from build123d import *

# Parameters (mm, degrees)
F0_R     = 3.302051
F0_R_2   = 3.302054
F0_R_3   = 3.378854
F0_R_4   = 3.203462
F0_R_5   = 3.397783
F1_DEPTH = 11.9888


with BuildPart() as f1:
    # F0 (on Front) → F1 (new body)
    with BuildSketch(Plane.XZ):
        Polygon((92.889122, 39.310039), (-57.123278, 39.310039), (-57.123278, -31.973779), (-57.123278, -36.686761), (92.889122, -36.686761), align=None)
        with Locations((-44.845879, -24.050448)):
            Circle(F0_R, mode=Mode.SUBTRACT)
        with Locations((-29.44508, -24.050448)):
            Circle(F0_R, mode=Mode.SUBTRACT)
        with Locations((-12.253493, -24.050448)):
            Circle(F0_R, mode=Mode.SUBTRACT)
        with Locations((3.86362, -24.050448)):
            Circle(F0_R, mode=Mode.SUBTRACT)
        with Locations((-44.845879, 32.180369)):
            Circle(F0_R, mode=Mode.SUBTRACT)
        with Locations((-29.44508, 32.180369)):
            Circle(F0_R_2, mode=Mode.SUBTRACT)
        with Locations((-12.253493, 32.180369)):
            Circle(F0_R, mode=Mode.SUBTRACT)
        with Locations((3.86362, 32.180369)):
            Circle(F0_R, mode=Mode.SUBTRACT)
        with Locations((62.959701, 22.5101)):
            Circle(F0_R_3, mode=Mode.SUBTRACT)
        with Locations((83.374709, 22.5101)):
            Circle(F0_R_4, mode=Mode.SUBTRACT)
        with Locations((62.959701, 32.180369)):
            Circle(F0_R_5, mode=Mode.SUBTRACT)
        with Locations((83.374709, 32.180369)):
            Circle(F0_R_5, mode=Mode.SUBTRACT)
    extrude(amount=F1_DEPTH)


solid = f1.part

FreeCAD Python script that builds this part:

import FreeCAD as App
import Part
import Sketcher
from FreeCAD import Vector
Q = App.Units.Quantity


def add_polygon(sketch, points):
    """Adds a closed chain of lines whose ends are joined by coincident constraints."""
    first, n = sketch.GeometryCount, len(points)
    for a, b in zip(points, points[1:] + points[:1]):
        sketch.addGeometry(Part.LineSegment(App.Vector(*a, 0), App.Vector(*b, 0)), False)
    for i in range(n):
        sketch.addConstraint(Sketcher.Constraint("Coincident", first + i, 2, first + (i + 1) % n, 1))

doc = App.newDocument("Part")
body = doc.addObject("PartDesign::Body", "Body")

# Sketch on XZ plane
sketch1 = doc.addObject("Sketcher::SketchObject", "Sketch")
body.addObject(sketch1)
sketch1.AttachmentSupport = (doc.XZ_Plane, [""])
sketch1.MapMode = "FlatFace"
add_polygon(sketch1, [(92.9, 39.3), (-57.1, 39.3), (-57.1, -36.7), (92.9, -36.7)])  # lines 0-3
sketch1.addGeometry(Part.Circle(Vector(-44.8, -24.1, 0), Vector(0, 0, 1), 3.3), False)  # 4
sketch1.addGeometry(Part.Circle(Vector(-29.4, -24.1, 0), Vector(0, 0, 1), 3.3), False)  # 5
sketch1.addGeometry(Part.Circle(Vector(-12.3, -24.1, 0), Vector(0, 0, 1), 3.3), False)  # 6
sketch1.addGeometry(Part.Circle(Vector(3.9, -24.1, 0), Vector(0, 0, 1), 3.3), False)  # 7
sketch1.addGeometry(Part.Circle(Vector(-44.8, 32.2, 0), Vector(0, 0, 1), 3.3), False)  # 8
sketch1.addGeometry(Part.Circle(Vector(-29.4, 32.2, 0), Vector(0, 0, 1), 3.3), False)  # 9
sketch1.addGeometry(Part.Circle(Vector(-12.3, 32.2, 0), Vector(0, 0, 1), 3.3), False)  # 10
sketch1.addGeometry(Part.Circle(Vector(3.9, 32.2, 0), Vector(0, 0, 1), 3.3), False)  # 11
sketch1.addGeometry(Part.Circle(Vector(63, 22.5, 0), Vector(0, 0, 1), 3.4), False)  # 12
sketch1.addGeometry(Part.Circle(Vector(83.4, 22.5, 0), Vector(0, 0, 1), 3.2), False)  # 13
sketch1.addGeometry(Part.Circle(Vector(63, 32.2, 0), Vector(0, 0, 1), 3.4), False)  # 14
sketch1.addGeometry(Part.Circle(Vector(83.4, 32.2, 0), Vector(0, 0, 1), 3.4), False)  # 15
sketch1.addConstraint(Sketcher.Constraint("Horizontal", 0))
sketch1.addConstraint(Sketcher.Constraint("Vertical", 1))
sketch1.addConstraint(Sketcher.Constraint("Horizontal", 2))
sketch1.addConstraint(Sketcher.Constraint("Vertical", 3))
sketch1.addConstraint(Sketcher.Constraint("Equal", 4, 5))
sketch1.addConstraint(Sketcher.Constraint("Equal", 5, 6))
sketch1.addConstraint(Sketcher.Constraint("Equal", 6, 7))
sketch1.addConstraint(Sketcher.Constraint("Equal", 7, 8))
sketch1.addConstraint(Sketcher.Constraint("Equal", 8, 10))
sketch1.addConstraint(Sketcher.Constraint("Equal", 10, 11))
sketch1.addConstraint(Sketcher.Constraint("Equal", 14, 15))
sketch1.addConstraint(Sketcher.Constraint("Horizontal", 4, 3, 5, 3))
sketch1.addConstraint(Sketcher.Constraint("Horizontal", 5, 3, 6, 3))
sketch1.addConstraint(Sketcher.Constraint("Horizontal", 6, 3, 7, 3))
sketch1.addConstraint(Sketcher.Constraint("Horizontal", 8, 3, 9, 3))
sketch1.addConstraint(Sketcher.Constraint("Horizontal", 9, 3, 10, 3))
sketch1.addConstraint(Sketcher.Constraint("Horizontal", 10, 3, 11, 3))
sketch1.addConstraint(Sketcher.Constraint("Horizontal", 12, 3, 13, 3))
sketch1.addConstraint(Sketcher.Constraint("Horizontal", 11, 3, 14, 3))
sketch1.addConstraint(Sketcher.Constraint("Horizontal", 14, 3, 15, 3))
sketch1.addConstraint(Sketcher.Constraint("Vertical", 4, 3, 8, 3))
sketch1.addConstraint(Sketcher.Constraint("Vertical", 5, 3, 9, 3))
sketch1.addConstraint(Sketcher.Constraint("Vertical", 6, 3, 10, 3))
sketch1.addConstraint(Sketcher.Constraint("Vertical", 7, 3, 11, 3))
sketch1.addConstraint(Sketcher.Constraint("Vertical", 12, 3, 14, 3))
sketch1.addConstraint(Sketcher.Constraint("Vertical", 13, 3, 15, 3))
sketch1.addConstraint(Sketcher.Constraint("DistanceX", 0, 2, 0, 1, Q("5.906 in")))
sketch1.addConstraint(Sketcher.Constraint("DistanceY", 1, 2, 1, 1, Q("2.992 in")))
sketch1.addConstraint(Sketcher.Constraint("Diameter", 4, Q("6.604102 mm")))
sketch1.addConstraint(Sketcher.Constraint("Diameter", 9, Q("6.604108 mm")))
sketch1.addConstraint(Sketcher.Constraint("Diameter", 12, Q("6.757708 mm")))
sketch1.addConstraint(Sketcher.Constraint("Diameter", 13, Q("6.406924 mm")))
sketch1.addConstraint(Sketcher.Constraint("Diameter", 14, Q("6.795566 mm")))
sketch1.addConstraint(Sketcher.Constraint("DistanceX", -1, 1, 12, 3, Q("62.959701 mm")))
sketch1.addConstraint(Sketcher.Constraint("DistanceY", -1, 1, 12, 3, Q("22.5101 mm")))
sketch1.addConstraint(Sketcher.Constraint("DistanceX", 4, 3, 5, 3, Q("15.400799 mm")))
sketch1.addConstraint(Sketcher.Constraint("DistanceX", 5, 3, 7, 3, Q("33.3087 mm")))
sketch1.addConstraint(Sketcher.Constraint("DistanceX", 10, 3, 13, 3, Q("95.628202 mm")))
sketch1.addConstraint(Sketcher.Constraint("DistanceX", 0, 2, 8, 3, Q("12.277399 mm")))
sketch1.addConstraint(Sketcher.Constraint("DistanceX", 4, 3, -1, 1, Q("44.845879 mm")))
sketch1.addConstraint(Sketcher.Constraint("DistanceY", -1, 1, 8, 3, Q("32.180369 mm")))
sketch1.addConstraint(Sketcher.Constraint("DistanceX", -1, 1, 13, 3, Q("83.374709 mm")))
sketch1.addConstraint(Sketcher.Constraint("DistanceY", -1, 1, 0, 2, Q("39.310039 mm")))
sketch1.addConstraint(Sketcher.Constraint("DistanceY", 4, 3, -1, 1, Q("24.050448 mm")))
pad1 = doc.addObject("PartDesign::Pad", "Pad")
body.addObject(pad1)
pad1.Profile = sketch1
pad1.Length = Q("0.472 in")

doc.recompute()
